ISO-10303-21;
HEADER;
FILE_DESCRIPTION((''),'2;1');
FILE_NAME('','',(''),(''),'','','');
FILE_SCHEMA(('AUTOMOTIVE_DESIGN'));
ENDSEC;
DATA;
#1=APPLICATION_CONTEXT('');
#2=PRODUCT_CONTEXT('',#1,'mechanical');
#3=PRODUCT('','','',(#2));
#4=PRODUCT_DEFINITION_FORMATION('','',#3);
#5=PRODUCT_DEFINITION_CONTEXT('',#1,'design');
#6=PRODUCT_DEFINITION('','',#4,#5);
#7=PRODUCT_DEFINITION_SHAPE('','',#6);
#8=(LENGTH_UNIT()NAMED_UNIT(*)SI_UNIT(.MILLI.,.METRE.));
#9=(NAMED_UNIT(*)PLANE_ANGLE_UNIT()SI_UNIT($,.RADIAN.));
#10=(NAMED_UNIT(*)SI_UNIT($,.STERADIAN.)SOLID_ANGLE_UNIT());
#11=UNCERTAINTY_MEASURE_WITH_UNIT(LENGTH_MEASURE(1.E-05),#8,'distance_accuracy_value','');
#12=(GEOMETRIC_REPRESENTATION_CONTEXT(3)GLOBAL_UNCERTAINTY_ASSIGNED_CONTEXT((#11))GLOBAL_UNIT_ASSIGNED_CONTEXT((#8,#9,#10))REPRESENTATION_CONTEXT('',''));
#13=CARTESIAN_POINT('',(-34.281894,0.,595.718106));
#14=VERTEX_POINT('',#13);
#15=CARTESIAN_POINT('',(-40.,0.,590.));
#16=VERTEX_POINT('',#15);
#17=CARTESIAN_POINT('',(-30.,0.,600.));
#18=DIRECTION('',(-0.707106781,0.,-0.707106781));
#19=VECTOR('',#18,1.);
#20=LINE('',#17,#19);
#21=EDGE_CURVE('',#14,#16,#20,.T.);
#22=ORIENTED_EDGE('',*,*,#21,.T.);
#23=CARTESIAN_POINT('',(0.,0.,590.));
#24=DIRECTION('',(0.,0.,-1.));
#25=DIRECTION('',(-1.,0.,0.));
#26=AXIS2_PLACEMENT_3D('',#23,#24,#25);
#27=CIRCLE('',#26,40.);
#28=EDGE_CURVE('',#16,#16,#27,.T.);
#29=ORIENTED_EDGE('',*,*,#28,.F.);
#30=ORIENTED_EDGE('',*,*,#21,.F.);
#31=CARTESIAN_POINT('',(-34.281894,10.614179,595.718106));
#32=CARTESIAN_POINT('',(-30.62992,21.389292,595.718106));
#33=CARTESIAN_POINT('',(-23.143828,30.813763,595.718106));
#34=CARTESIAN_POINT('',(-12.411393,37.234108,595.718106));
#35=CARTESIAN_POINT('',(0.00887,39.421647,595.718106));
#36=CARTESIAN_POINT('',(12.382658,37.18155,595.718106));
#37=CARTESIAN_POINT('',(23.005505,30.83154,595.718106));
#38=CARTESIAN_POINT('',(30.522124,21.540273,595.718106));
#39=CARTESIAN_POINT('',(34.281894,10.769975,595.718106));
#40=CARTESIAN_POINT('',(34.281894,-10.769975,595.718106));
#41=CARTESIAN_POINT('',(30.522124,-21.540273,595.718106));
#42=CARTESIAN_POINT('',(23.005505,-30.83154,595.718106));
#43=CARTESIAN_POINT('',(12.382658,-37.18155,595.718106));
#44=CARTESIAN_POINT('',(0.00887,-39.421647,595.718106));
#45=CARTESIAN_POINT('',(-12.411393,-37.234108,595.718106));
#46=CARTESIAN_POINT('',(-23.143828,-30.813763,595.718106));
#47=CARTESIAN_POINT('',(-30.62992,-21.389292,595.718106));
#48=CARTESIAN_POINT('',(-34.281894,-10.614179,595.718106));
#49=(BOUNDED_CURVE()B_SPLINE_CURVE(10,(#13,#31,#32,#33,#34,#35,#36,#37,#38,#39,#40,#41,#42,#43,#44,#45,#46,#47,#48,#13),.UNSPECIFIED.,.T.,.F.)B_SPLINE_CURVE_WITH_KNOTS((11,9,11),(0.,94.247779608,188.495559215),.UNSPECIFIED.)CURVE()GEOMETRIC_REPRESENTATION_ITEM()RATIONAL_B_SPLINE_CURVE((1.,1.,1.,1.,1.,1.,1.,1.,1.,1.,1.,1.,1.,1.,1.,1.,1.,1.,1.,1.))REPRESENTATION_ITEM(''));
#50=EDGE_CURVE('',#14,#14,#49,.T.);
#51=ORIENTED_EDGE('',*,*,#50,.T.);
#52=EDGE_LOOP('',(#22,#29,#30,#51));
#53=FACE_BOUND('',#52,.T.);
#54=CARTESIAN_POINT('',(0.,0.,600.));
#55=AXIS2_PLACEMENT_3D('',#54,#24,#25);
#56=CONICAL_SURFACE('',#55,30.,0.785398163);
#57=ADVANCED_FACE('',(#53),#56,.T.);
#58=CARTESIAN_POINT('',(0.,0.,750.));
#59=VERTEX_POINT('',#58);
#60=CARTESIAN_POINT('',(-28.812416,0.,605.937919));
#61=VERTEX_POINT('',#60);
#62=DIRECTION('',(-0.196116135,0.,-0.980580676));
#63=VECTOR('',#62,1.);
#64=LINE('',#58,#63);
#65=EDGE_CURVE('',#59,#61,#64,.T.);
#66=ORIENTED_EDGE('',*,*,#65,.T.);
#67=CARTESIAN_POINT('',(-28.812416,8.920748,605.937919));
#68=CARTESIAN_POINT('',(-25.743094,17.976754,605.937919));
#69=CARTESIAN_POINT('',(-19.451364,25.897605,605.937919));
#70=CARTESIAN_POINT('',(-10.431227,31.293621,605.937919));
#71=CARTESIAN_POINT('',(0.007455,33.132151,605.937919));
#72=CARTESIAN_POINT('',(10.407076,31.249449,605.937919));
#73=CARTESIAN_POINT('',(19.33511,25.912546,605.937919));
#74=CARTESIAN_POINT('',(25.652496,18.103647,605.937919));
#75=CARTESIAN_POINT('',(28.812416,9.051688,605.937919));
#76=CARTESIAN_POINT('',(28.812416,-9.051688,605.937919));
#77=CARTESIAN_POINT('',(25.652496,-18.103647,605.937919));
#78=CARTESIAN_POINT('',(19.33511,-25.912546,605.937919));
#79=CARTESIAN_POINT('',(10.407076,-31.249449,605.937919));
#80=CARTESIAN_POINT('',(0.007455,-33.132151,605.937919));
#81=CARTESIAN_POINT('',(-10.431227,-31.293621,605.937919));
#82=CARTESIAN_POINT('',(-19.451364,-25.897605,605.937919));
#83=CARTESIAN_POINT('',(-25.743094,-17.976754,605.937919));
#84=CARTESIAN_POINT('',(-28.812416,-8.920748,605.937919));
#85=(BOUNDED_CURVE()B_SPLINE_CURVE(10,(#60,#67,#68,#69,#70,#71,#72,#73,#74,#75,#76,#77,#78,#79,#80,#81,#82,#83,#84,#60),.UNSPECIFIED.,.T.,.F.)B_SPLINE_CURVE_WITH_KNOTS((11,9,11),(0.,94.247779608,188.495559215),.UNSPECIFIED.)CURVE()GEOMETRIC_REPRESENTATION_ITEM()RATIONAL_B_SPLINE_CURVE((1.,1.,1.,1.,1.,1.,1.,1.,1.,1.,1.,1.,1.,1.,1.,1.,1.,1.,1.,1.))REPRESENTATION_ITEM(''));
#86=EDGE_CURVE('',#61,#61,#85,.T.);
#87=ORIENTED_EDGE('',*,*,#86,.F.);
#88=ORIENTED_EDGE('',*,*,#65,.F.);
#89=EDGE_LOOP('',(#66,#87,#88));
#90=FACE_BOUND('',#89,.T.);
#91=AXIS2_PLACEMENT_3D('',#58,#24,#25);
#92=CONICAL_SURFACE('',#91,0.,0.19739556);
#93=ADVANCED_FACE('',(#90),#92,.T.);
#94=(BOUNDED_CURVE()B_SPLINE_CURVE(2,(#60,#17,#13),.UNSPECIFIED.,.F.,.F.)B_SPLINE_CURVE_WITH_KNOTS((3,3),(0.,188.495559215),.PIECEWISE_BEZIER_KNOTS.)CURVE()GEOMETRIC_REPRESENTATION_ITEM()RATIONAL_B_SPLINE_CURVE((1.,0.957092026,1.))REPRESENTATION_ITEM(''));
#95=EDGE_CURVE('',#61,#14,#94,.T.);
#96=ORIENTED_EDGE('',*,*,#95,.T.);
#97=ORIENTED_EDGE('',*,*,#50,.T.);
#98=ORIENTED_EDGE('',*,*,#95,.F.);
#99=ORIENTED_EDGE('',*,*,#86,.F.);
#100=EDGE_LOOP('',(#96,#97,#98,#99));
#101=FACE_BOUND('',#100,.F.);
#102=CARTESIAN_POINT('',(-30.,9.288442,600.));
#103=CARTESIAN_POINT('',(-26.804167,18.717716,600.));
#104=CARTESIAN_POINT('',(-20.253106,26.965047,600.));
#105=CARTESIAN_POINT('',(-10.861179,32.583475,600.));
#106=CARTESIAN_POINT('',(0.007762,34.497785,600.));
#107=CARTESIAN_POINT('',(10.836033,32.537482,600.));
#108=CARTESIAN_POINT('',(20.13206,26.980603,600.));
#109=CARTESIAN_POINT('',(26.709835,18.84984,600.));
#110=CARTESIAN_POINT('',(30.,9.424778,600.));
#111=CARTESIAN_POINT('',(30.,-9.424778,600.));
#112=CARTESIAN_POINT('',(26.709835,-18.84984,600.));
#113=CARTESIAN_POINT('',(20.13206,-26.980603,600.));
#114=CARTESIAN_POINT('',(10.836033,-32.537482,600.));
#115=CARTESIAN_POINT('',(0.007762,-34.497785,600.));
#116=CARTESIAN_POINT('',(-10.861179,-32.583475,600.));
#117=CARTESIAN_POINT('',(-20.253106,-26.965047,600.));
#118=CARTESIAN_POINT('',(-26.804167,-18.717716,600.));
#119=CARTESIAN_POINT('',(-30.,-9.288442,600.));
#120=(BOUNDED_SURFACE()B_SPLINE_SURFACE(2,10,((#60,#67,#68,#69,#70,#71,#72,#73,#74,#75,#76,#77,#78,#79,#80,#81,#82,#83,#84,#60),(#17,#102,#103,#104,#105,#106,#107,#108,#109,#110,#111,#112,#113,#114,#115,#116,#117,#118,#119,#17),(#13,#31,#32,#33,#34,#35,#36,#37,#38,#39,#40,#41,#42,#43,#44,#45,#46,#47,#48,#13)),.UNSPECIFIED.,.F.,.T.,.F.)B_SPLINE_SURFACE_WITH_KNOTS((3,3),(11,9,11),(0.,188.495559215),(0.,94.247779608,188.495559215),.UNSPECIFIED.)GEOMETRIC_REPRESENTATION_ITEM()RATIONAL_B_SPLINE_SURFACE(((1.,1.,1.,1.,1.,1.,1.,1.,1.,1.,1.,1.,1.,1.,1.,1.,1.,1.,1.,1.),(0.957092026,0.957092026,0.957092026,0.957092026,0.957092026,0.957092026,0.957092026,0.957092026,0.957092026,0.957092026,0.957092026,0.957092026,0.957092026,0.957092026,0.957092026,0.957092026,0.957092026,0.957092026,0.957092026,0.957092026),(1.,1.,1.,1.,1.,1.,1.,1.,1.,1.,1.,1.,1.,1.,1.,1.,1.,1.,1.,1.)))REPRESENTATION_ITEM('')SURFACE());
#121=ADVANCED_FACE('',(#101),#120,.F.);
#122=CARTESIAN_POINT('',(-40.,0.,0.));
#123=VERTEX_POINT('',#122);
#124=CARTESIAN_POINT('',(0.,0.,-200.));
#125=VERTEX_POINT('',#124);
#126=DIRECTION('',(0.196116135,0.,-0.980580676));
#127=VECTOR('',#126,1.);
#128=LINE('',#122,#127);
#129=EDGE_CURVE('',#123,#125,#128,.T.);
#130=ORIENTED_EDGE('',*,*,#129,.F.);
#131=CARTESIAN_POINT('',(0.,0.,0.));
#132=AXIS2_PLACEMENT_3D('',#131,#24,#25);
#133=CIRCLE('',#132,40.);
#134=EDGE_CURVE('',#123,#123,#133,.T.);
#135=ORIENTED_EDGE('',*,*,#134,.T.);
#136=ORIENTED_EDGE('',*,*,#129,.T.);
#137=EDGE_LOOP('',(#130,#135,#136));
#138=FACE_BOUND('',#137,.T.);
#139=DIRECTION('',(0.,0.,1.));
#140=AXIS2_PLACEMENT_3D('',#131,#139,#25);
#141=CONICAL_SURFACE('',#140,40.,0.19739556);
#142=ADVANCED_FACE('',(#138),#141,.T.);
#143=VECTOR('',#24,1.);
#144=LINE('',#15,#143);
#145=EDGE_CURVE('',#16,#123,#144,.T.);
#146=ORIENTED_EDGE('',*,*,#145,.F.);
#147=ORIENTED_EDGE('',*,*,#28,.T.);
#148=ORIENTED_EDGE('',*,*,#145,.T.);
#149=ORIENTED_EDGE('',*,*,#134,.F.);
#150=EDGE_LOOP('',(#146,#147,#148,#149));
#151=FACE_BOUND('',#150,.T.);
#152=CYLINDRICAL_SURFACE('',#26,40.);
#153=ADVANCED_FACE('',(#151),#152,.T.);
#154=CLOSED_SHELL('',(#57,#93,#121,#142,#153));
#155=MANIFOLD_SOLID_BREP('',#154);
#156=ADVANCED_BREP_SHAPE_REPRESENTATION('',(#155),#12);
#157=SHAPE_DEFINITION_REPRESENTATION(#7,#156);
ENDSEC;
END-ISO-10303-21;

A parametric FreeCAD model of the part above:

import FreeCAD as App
import Part
import Sketcher
Q = App.Units.Quantity


def edges_at(feature, points):
    """Names of the edges that pass closest to the given points."""
    edges = feature.Shape.Edges
    near = lambda p: min(range(len(edges)), key=lambda i: edges[i].distToShape(Part.Vertex(*p))[0])
    return sorted({f"Edge{near(p) + 1}" for p in points})


def add_polygon(sketch, points):
    """Adds a closed chain of lines whose ends are joined by coincident constraints."""
    first, n = sketch.GeometryCount, len(points)
    for a, b in zip(points, points[1:] + points[:1]):
        sketch.addGeometry(Part.LineSegment(App.Vector(*a, 0), App.Vector(*b, 0)), False)
    for i in range(n):
        sketch.addConstraint(Sketcher.Constraint("Coincident", first + i, 2, first + (i + 1) % n, 1))

doc = App.newDocument("Part")
body = doc.addObject("PartDesign::Body", "Body")

sketch1 = body.newObject("Sketcher::SketchObject", "Sketch")
sketch1.AttachmentSupport = (doc.getObject("XZ_Plane"), [""])
sketch1.MapMode = "FlatFace"
add_polygon(sketch1, [(0, 750), (-30, 600), (-40, 590), (-40, 0), (0, -200)])
sketch1.addConstraint(Sketcher.Constraint("Vertical", 2))
sketch1.addConstraint(Sketcher.Constraint("Vertical", 4))
sketch1.addConstraint(Sketcher.Constraint("PointOnObject", 2, 2, -1))
sketch1.addConstraint(Sketcher.Constraint("PointOnObject", 3, 2, -2))
sketch1.addConstraint(Sketcher.Constraint("DistanceY", 2, 2, 2, 1, Q("590 mm")))
sketch1.addConstraint(Sketcher.Constraint("DistanceY", 4, 1, 4, 2, Q("950 mm")))
sketch1.addConstraint(Sketcher.Constraint("Angle", 1, Q("-135 deg")))
sketch1.addConstraint(Sketcher.Constraint("DistanceX", 0, 2, -1, 1, Q("30 mm")))
sketch1.addConstraint(Sketcher.Constraint("DistanceY", -1, 1, 0, 2, Q("600 mm")))
sketch1.addConstraint(Sketcher.Constraint("DistanceY", 3, 2, -1, 1, Q("200 mm")))
revolution = body.newObject("PartDesign::Revolution", "Revolution")
revolution.Profile = sketch1
revolution.ReferenceAxis = (sketch1, ["V_Axis"])
revolution.Angle = 360
doc.recompute()

fillet = body.newObject("PartDesign::Fillet", "Fillet")
fillet.Base = (revolution, edges_at(revolution, [(30, 0, 600)]))
fillet.Radius = 20

doc.recompute()
